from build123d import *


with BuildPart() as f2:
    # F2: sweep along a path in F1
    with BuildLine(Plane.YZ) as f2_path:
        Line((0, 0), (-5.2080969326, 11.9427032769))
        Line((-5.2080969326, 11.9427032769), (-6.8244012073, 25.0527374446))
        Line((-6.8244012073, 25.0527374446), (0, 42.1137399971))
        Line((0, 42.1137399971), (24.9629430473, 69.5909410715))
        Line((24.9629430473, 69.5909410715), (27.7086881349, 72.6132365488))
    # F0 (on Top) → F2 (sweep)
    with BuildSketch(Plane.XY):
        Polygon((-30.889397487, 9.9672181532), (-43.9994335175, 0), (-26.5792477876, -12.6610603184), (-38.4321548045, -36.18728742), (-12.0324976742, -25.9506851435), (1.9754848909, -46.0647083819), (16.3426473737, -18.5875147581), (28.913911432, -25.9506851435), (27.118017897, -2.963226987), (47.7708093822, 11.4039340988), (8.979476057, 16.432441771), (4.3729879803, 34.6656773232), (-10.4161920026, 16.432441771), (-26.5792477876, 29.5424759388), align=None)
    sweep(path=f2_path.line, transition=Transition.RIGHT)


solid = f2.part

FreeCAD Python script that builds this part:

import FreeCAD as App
import Part
import Sketcher
Q = App.Units.Quantity


def add_polygon(sketch, points):
    """Adds a closed chain of lines whose ends are joined by coincident constraints."""
    first, n = sketch.GeometryCount, len(points)
    for a, b in zip(points, points[1:] + points[:1]):
        sketch.addGeometry(Part.LineSegment(App.Vector(*a, 0), App.Vector(*b, 0)), False)
    for i in range(n):
        sketch.addConstraint(Sketcher.Constraint("Coincident", first + i, 2, first + (i + 1) % n, 1))

doc = App.newDocument("Part")
body = doc.addObject("PartDesign::Body", "Body")

# Sketch on XY plane
sketch1 = body.newObject("Sketcher::SketchObject", "Sketch")
sketch1.AttachmentSupport = (doc.getObject("XY_Plane"), [""])
sketch1.MapMode = "FlatFace"
add_polygon(sketch1, [(-30.889397, 9.967218), (-43.999434, 0), (-26.579248, -12.66106), (-38.432155, -36.187287), (-12.032498, -25.950685), (1.975485, -46.064708), (16.342647, -18.587515), (28.913911, -25.950685), (27.118018, -2.963227), (47.770809, 11.403934), (8.979476, 16.432442), (4.372988, 34.665677), (-10.416192, 16.432442), (-26.579248, 29.542476)])  # lines 0-13
sketch1.addConstraint([
    Sketcher.Constraint("PointOnObject", 0, 2, -1),
    Sketcher.Constraint("Perpendicular", 11, 12),
    Sketcher.Constraint("Horizontal", 3, 2, 6, 2),
    Sketcher.Constraint("Horizontal", 9, 2, 11, 2),
    Sketcher.Constraint("Vertical", 1, 2, 12, 2),
    Sketcher.Constraint("Distance", 2, Q("26.343401 mm")),
    Sketcher.Constraint("DistanceY", 12, 2, 10, 2, Q("5.123201 mm")),
    Sketcher.Constraint("Distance", 1, Q("21.535211 mm")),
    Sketcher.Constraint("Distance", 4, Q("24.511171 mm")),
    Sketcher.Constraint("Distance", 8, Q("25.158559 mm")),
    Sketcher.Constraint("DistanceY", 1, 2, -1, 1, Q("12.66106 mm")),
    Sketcher.Constraint("DistanceY", 4, 2, -1, 1, Q("46.064708 mm")),
    Sketcher.Constraint("DistanceX", -1, 1, 6, 2, Q("28.913911 mm")),
    Sketcher.Constraint("DistanceX", -1, 1, 8, 2, Q("47.770809 mm")),
    Sketcher.Constraint("DistanceY", -1, 1, 9, 2, Q("16.432442 mm")),
    Sketcher.Constraint("DistanceY", -1, 1, 13, 2, Q("9.967218 mm")),
    Sketcher.Constraint("DistanceX", 0, 2, 2, 2, Q("5.567279 mm")),
    Sketcher.Constraint("DistanceX", 1, 2, 3, 2, Q("14.54675 mm")),
    Sketcher.Constraint("DistanceX", 2, 2, 4, 2, Q("40.40764 mm")),
    Sketcher.Constraint("DistanceY", 3, 2, 5, 2, Q("7.36317 mm")),
    Sketcher.Constraint("DistanceX", 0, 2, 5, 2, Q("60.342081 mm")),
    Sketcher.Constraint("DistanceX", 3, 2, 6, 2, Q("40.946409 mm")),
    Sketcher.Constraint("DistanceX", 5, 2, 7, 2, Q("10.775371 mm")),
    Sketcher.Constraint("DistanceY", 6, 2, 7, 2, Q("22.987458 mm")),
    Sketcher.Constraint("DistanceX", 9, 2, 7, 2, Q("18.138542 mm")),
    Sketcher.Constraint("DistanceX", 10, 2, 9, 2, Q("4.606488 mm")),
    Sketcher.Constraint("DistanceX", 11, 2, 9, 2, Q("19.395668 mm")),
    Sketcher.Constraint("DistanceX", 13, 2, 12, 2, Q("4.31015 mm")),
])

# Sketch on YZ plane
sketch2 = body.newObject("Sketcher::SketchObject", "Sketch001")
sketch2.AttachmentSupport = (doc.getObject("YZ_Plane"), [""])
sketch2.MapMode = "FlatFace"
sketch2.addGeometry([
    Part.LineSegment(App.Vector(0, 0, 0), App.Vector(-5.208097, 11.942703, 0)),  # 0
    Part.LineSegment(App.Vector(-5.208097, 11.942703, 0), App.Vector(-6.824401, 25.052737, 0)),  # 1
    Part.LineSegment(App.Vector(-6.824401, 25.052737, 0), App.Vector(0, 42.11374, 0)),  # 2
    Part.LineSegment(App.Vector(0, 42.11374, 0), App.Vector(24.962943, 69.590941, 0)),  # 3
    Part.LineSegment(App.Vector(24.962943, 69.590941, 0), App.Vector(27.708688, 72.613237, 0)),  # 4
], False)
sketch2.addConstraint([
    Sketcher.Constraint("Coincident", 0, 2, 1, 1),
    Sketcher.Constraint("Coincident", 1, 2, 2, 1),
    Sketcher.Constraint("Coincident", 2, 2, 3, 1),
    Sketcher.Constraint("Coincident", 3, 2, 4, 1),
    Sketcher.Constraint("Coincident", 0, 1, -1, 1),
    Sketcher.Constraint("PointOnObject", 2, 2, -2),
    Sketcher.Constraint("Parallel", 3, 4),
    Sketcher.Constraint("DistanceX", 1, 2, -1, 1, Q("6.824401 mm")),
    Sketcher.Constraint("DistanceY", 2, 2, 3, 2, Q("27.477201 mm")),
    Sketcher.Constraint("DistanceY", 1, 2, 4, 2, Q("47.560499 mm")),
    Sketcher.Constraint("DistanceY", -1, 1, 2, 2, Q("42.11374 mm")),
    Sketcher.Constraint("DistanceX", -1, 1, 4, 2, Q("27.708688 mm")),
    Sketcher.Constraint("DistanceX", 0, 2, 3, 2, Q("30.17104 mm")),
    Sketcher.Constraint("Distance", 0, Q("13.028908 mm")),
    Sketcher.Constraint("Distance", 1, Q("13.209294 mm")),
])
doc.recompute()

additivepipe = body.newObject("PartDesign::AdditivePipe", "AdditivePipe")
additivepipe.Profile = sketch1
additivepipe.Spine = (sketch2, ["Edge1", "Edge2", "Edge3", "Edge4", "Edge5"])
additivepipe.Transition = "Right corner"

doc.recompute()
